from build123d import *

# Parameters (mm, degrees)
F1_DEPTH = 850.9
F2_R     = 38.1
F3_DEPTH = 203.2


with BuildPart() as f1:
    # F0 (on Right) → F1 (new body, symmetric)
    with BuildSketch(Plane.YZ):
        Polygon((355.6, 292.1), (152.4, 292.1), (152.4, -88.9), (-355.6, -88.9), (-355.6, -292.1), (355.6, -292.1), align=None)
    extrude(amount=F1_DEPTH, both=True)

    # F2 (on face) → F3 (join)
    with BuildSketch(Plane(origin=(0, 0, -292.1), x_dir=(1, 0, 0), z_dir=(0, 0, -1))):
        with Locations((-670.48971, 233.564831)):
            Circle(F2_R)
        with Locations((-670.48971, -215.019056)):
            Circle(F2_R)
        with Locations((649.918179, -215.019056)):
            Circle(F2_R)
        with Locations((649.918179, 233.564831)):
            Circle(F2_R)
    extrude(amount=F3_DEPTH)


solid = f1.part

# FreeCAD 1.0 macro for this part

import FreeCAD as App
import Part
import Sketcher
Q = App.Units.Quantity


def add_polygon(sketch, points):
    """Adds a closed chain of lines whose ends are joined by coincident constraints."""
    first, n = sketch.GeometryCount, len(points)
    for a, b in zip(points, points[1:] + points[:1]):
        sketch.addGeometry(Part.LineSegment(App.Vector(*a, 0), App.Vector(*b, 0)), False)
    for i in range(n):
        sketch.addConstraint(Sketcher.Constraint("Coincident", first + i, 2, first + (i + 1) % n, 1))

doc = App.newDocument("Part")
body = doc.addObject("PartDesign::Body", "Body")

sketch1 = doc.addObject("Sketcher::SketchObject", "Sketch")
body.addObject(sketch1)
sketch1.AttachmentSupport = (doc.YZ_Plane, [""])
sketch1.MapMode = "FlatFace"
add_polygon(sketch1, [(356, 292), (152, 292), (152, -89), (-356, -89), (-356, -292), (356, -292)])
sketch1.addConstraint([
    Sketcher.Constraint("Horizontal", 0),
    Sketcher.Constraint("Vertical", 1),
    Sketcher.Constraint("Horizontal", 2),
    Sketcher.Constraint("Vertical", 3),
    Sketcher.Constraint("Horizontal", 4),
    Sketcher.Constraint("Vertical", 5),
    Sketcher.Constraint("Symmetric", 3, 2, 5, 2, -1, 1),
    Sketcher.Constraint("Equal", 0, 3),
    Sketcher.Constraint("DistanceX", 0, 2, 0, 1, Q("8 in")),
    Sketcher.Constraint("DistanceX", 2, 2, 2, 1, Q("20 in")),
    Sketcher.Constraint("DistanceY", 1, 2, 1, 1, Q("15 in")),
])
pad1 = doc.addObject("PartDesign::Pad", "Pad")
body.addObject(pad1)
pad1.Profile = sketch1
pad1.Length = Q("67 in")
pad1.Midplane = True

sketch2 = doc.addObject("Sketcher::SketchObject", "Sketch001")
body.addObject(sketch2)
sketch2.AttachmentSupport = (doc.XY_Plane, [""])
sketch2.MapMode = "FlatFace"
sketch2.AttachmentOffset = App.Placement(App.Vector(0, 0, -11.5 * 25.4), App.Rotation())
sketch2.addGeometry([
    Part.Circle(App.Vector(-670, -234, 0), App.Vector(0, 0, 1), 38),
    Part.Circle(App.Vector(-670, 215, 0), App.Vector(0, 0, 1), 38),
    Part.Circle(App.Vector(650, 215, 0), App.Vector(0, 0, 1), 38),
    Part.Circle(App.Vector(650, -234, 0), App.Vector(0, 0, 1), 38),
], False)
sketch2.addConstraint([
    Sketcher.Constraint("Equal", 0, 1),
    Sketcher.Constraint("Equal", 1, 2),
    Sketcher.Constraint("Equal", 2, 3),
    Sketcher.Constraint("Horizontal", 1, 3, 2, 3),
    Sketcher.Constraint("Horizontal", 0, 3, 3, 3),
    Sketcher.Constraint("Vertical", 0, 3, 1, 3),
    Sketcher.Constraint("Vertical", 2, 3, 3, 3),
    Sketcher.Constraint("Diameter", 0, Q("3 in")),
    Sketcher.Constraint("DistanceX", 0, 3, -1, 1, Q("670.48971 mm")),
    Sketcher.Constraint("DistanceY", 0, 3, -1, 1, Q("233.564831 mm")),
    Sketcher.Constraint("DistanceX", -1, 1, 2, 3, Q("649.918179 mm")),
    Sketcher.Constraint("DistanceY", -1, 1, 1, 3, Q("215.019056 mm")),
])
pad2 = doc.addObject("PartDesign::Pad", "Pad001")
body.addObject(pad2)
pad2.Profile = sketch2
pad2.Length = Q("8 in")
pad2.Reversed = True

doc.recompute()
